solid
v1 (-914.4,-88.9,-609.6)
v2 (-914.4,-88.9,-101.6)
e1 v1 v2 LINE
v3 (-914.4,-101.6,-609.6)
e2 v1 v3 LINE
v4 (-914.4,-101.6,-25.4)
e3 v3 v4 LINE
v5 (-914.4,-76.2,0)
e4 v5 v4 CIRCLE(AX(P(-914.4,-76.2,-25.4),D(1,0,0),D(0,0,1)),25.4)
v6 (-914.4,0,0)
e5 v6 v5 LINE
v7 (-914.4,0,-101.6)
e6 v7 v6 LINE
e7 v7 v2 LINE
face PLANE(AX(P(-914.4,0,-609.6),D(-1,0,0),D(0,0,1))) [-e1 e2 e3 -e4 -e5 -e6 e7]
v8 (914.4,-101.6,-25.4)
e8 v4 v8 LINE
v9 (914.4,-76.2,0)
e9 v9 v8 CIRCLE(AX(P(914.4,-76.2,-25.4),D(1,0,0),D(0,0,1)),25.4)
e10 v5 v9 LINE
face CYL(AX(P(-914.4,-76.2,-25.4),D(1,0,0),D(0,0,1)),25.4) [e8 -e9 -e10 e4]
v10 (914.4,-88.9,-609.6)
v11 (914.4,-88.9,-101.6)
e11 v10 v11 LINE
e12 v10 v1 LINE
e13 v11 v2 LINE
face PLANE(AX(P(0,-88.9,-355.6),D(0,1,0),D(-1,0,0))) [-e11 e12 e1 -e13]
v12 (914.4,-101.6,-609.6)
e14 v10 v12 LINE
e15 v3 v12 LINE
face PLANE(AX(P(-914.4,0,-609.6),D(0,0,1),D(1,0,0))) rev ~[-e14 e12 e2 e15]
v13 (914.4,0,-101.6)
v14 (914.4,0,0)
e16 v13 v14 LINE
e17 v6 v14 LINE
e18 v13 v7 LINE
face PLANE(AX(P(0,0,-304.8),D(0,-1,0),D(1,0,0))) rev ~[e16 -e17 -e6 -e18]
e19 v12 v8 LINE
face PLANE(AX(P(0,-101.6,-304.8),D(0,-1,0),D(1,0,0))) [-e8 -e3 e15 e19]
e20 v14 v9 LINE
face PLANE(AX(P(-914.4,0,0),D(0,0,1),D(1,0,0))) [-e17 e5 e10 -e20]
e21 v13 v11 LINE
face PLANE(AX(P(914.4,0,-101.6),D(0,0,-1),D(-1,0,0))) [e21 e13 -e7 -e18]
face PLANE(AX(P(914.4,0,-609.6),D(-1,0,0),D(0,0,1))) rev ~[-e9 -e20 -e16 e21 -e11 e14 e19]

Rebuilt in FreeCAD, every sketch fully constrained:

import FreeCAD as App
import Part
import Sketcher
Q = App.Units.Quantity


def edges_at(feature, points):
    """Names of the edges that pass closest to the given points."""
    edges = feature.Shape.Edges
    near = lambda p: min(range(len(edges)), key=lambda i: edges[i].distToShape(Part.Vertex(*p))[0])
    return sorted({f"Edge{near(p) + 1}" for p in points})


def add_polygon(sketch, points):
    """Adds a closed chain of lines whose ends are joined by coincident constraints."""
    first, n = sketch.GeometryCount, len(points)
    for a, b in zip(points, points[1:] + points[:1]):
        sketch.addGeometry(Part.LineSegment(App.Vector(*a, 0), App.Vector(*b, 0)), False)
    for i in range(n):
        sketch.addConstraint(Sketcher.Constraint("Coincident", first + i, 2, first + (i + 1) % n, 1))

doc = App.newDocument("Part")
params = doc.addObject("Spreadsheet::Sheet", "Params")
for row, (alias, value) in enumerate([
    ("sketch1_width", "72 in"),
    ("sketch1_height", "24 in"),
    ("pad1_length", "4 in"),
    ("sketch2_width", "72 in"),
    ("sketch2_height", "20 in"),
    ("pocket1_length", "3.5 in"),
    ("fillet_radius", "1 in"),
], start=1):
    params.set(f"A{row}", alias)
    params.set(f"B{row}", "=" + value)
    params.setAlias(f"B{row}", alias)

body = doc.addObject("PartDesign::Body", "Body")

sketch1 = body.newObject("Sketcher::SketchObject", "Sketch")
sketch1.AttachmentSupport = (doc.getObject("XZ_Plane"), [""])
sketch1.MapMode = "FlatFace"
add_polygon(sketch1, [(-914, 0), (-914, -610), (914, -610), (914, 0)])
sketch1.addConstraint([
    Sketcher.Constraint("Vertical", 0),
    Sketcher.Constraint("Horizontal", 1),
    Sketcher.Constraint("Vertical", 2),
    Sketcher.Constraint("Horizontal", 3),
    Sketcher.Constraint("Symmetric", 2, 2, 3, 2, -1, 1),
    Sketcher.Constraint("DistanceX", 1, 1, 1, 2, Q("72 in")),
    Sketcher.Constraint("DistanceY", 0, 2, 0, 1, Q("24 in")),
])
sketch1.setExpression("Constraints[9]", "Params.sketch1_width")
sketch1.setExpression("Constraints[10]", "Params.sketch1_height")
pad1 = body.newObject("PartDesign::Pad", "Pad")
pad1.Profile = sketch1
pad1.setExpression("Length", "Params.pad1_length")

sketch2 = body.newObject("Sketcher::SketchObject", "Sketch001")
sketch2.AttachmentSupport = (doc.getObject("XZ_Plane"), [""])
sketch2.MapMode = "FlatFace"
add_polygon(sketch2, [(914, -102), (914, -610), (-914, -610), (-914, -102)])
sketch2.addConstraint([
    Sketcher.Constraint("Vertical", 0),
    Sketcher.Constraint("Horizontal", 1),
    Sketcher.Constraint("Vertical", 2),
    Sketcher.Constraint("Horizontal", 3),
    Sketcher.Constraint("DistanceX", 1, 2, 1, 1, Q("72 in")),
    Sketcher.Constraint("DistanceY", 0, 2, 0, 1, Q("20 in")),
    Sketcher.Constraint("DistanceX", -1, 1, 0, 2, Q("36 in")),
    Sketcher.Constraint("DistanceY", 0, 2, -1, 1, Q("24 in")),
])
sketch2.setExpression("Constraints[8]", "Params.sketch2_width")
sketch2.setExpression("Constraints[9]", "Params.sketch2_height")
pocket1 = body.newObject("PartDesign::Pocket", "Pocket")
pocket1.Profile = sketch2
pocket1.setExpression("Length", "Params.pocket1_length")
pocket1.Reversed = True
doc.recompute()

fillet = body.newObject("PartDesign::Fillet", "Fillet")
fillet.Base = (pocket1, edges_at(pocket1, [(0, -101.6, 0)]))
fillet.setExpression("Radius", "Params.fillet_radius")

doc.recompute()
